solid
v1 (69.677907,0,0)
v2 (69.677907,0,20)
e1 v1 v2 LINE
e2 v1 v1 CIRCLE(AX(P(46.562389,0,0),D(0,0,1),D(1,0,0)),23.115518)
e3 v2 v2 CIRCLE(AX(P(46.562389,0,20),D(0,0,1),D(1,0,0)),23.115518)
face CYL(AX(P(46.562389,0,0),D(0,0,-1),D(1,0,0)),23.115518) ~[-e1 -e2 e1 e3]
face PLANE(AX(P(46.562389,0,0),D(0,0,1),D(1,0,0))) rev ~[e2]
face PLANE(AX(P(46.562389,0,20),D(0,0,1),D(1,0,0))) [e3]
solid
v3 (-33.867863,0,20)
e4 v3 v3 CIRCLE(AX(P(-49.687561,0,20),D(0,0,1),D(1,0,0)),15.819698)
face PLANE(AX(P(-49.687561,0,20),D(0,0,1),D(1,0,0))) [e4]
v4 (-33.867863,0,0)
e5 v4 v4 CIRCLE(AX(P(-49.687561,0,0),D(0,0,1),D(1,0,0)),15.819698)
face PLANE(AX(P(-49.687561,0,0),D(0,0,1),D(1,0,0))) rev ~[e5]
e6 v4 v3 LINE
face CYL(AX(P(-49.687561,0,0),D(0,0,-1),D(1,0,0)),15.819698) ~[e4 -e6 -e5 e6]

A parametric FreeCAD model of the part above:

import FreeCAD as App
import Part
import Sketcher
Q = App.Units.Quantity

doc = App.newDocument("Part")
body = doc.addObject("PartDesign::Body", "Body")

sketch1 = body.newObject("Sketcher::SketchObject", "Sketch")
sketch1.AttachmentSupport = (doc.getObject("XY_Plane"), [""])
sketch1.MapMode = "FlatFace"
sketch1.addGeometry(Part.Circle(App.Vector(47, 0, 0), App.Vector(0, 0, 1), 23), False)
sketch1.addConstraint(Sketcher.Constraint("PointOnObject", 0, 3, -1))
sketch1.addConstraint(Sketcher.Constraint("Diameter", 0, Q("46.231036 mm")))
sketch1.addConstraint(Sketcher.Constraint("DistanceX", -1, 1, 0, 3, Q("46.562389 mm")))
pad1 = body.newObject("PartDesign::Pad", "Pad")
pad1.Profile = sketch1
pad1.Length = 20
body2 = doc.addObject("PartDesign::Body", "Body001")

sketch2 = body2.newObject("Sketcher::SketchObject", "Sketch001")
sketch2.AttachmentSupport = (doc.getObject("XY_Plane001"), [""])
sketch2.MapMode = "FlatFace"
sketch2.addGeometry(Part.Circle(App.Vector(-50, 0, 0), App.Vector(0, 0, 1), 16), False)
sketch2.addConstraint(Sketcher.Constraint("PointOnObject", 0, 3, -1))
sketch2.addConstraint(Sketcher.Constraint("Diameter", 0, Q("31.639396 mm")))
sketch2.addConstraint(Sketcher.Constraint("DistanceX", 0, 3, -1, 1, Q("49.687561 mm")))
pad2 = body2.newObject("PartDesign::Pad", "Pad001")
pad2.Profile = sketch2
pad2.Length = 20

doc.recompute()
